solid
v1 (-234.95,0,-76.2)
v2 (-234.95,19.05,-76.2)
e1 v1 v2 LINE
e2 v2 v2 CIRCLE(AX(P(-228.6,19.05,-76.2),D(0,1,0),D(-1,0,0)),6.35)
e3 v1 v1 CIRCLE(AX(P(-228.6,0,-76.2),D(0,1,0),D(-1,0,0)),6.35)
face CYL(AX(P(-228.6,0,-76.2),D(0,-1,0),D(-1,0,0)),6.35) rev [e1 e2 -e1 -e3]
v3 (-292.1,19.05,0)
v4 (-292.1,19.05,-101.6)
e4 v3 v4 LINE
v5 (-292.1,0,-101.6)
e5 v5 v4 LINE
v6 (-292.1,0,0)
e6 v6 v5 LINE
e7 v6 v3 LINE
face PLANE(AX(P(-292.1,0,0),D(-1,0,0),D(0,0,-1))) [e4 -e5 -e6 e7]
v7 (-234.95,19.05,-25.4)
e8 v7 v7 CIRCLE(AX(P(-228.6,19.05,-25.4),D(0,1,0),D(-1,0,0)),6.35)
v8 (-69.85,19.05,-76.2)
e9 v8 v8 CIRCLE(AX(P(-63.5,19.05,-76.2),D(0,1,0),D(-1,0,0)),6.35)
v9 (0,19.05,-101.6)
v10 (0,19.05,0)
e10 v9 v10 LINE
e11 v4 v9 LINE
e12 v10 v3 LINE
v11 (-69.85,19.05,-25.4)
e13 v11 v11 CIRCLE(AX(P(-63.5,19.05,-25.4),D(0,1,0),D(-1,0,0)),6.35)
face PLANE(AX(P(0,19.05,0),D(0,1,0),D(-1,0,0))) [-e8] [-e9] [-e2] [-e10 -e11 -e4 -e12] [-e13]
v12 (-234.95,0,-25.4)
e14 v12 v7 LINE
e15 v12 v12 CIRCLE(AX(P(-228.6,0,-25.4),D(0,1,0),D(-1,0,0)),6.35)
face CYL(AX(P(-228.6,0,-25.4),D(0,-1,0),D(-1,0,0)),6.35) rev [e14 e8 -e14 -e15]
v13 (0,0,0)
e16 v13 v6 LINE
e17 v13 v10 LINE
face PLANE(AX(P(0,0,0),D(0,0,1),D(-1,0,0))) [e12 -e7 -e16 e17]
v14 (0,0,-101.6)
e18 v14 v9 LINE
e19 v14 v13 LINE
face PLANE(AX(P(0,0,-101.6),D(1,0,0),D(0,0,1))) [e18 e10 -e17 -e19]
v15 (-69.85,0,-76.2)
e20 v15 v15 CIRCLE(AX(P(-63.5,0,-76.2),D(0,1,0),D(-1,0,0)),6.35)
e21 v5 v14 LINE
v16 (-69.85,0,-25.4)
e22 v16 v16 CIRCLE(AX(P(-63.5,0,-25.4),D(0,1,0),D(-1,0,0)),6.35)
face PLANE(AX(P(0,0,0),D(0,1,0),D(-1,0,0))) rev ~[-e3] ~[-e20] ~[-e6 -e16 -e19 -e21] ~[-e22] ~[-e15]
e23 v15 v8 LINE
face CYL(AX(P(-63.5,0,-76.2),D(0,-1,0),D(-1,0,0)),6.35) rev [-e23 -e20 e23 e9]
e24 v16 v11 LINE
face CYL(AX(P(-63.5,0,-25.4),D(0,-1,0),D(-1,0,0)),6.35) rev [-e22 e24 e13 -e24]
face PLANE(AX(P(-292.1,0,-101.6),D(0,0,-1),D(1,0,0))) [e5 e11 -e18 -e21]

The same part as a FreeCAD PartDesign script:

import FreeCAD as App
import Part
import Sketcher
from FreeCAD import Vector
Q = App.Units.Quantity

doc = App.newDocument("Part")
body = doc.addObject("PartDesign::Body", "Body")

# Sketch on XZ plane
sketch1 = body.newObject("Sketcher::SketchObject", "Sketch")
sketch1.AttachmentSupport = (doc.getObject("XZ_Plane"), [""])
sketch1.MapMode = "FlatFace"
sketch1.addGeometry(Part.LineSegment(Vector(-292, 0, 0), Vector(0, 0, 0)), False)
sketch1.addGeometry(Part.LineSegment(Vector(0, 0, 0), Vector(0, -102, 0)), False)
sketch1.addGeometry(Part.LineSegment(Vector(0, -102, 0), Vector(-292, -102, 0)), False)
sketch1.addGeometry(Part.LineSegment(Vector(-292, -102, 0), Vector(-292, 0, 0)), False)
sketch1.addGeometry(Part.Circle(Vector(-64, -76, 0), Vector(0, 0, 1), 6), False)
sketch1.addGeometry(Part.Circle(Vector(-229, -76, 0), Vector(0, 0, 1), 6), False)
sketch1.addGeometry(Part.Circle(Vector(-64, -25, 0), Vector(0, 0, 1), 6), False)
sketch1.addGeometry(Part.Circle(Vector(-229, -25, 0), Vector(0, 0, 1), 6), False)
sketch1.addConstraint(Sketcher.Constraint("Coincident", 0, 2, 1, 1))
sketch1.addConstraint(Sketcher.Constraint("Coincident", 1, 2, 2, 1))
sketch1.addConstraint(Sketcher.Constraint("Coincident", 2, 2, 3, 1))
sketch1.addConstraint(Sketcher.Constraint("Coincident", 3, 2, 0, 1))
sketch1.addConstraint(Sketcher.Constraint("Horizontal", 0))
sketch1.addConstraint(Sketcher.Constraint("Vertical", 1))
sketch1.addConstraint(Sketcher.Constraint("Horizontal", 2))
sketch1.addConstraint(Sketcher.Constraint("Vertical", 3))
sketch1.addConstraint(Sketcher.Constraint("Coincident", 0, 2, -1, 1))
sketch1.addConstraint(Sketcher.Constraint("Equal", 4, 5))
sketch1.addConstraint(Sketcher.Constraint("Equal", 5, 6))
sketch1.addConstraint(Sketcher.Constraint("Equal", 6, 7))
sketch1.addConstraint(Sketcher.Constraint("Horizontal", 4, 3, 5, 3))
sketch1.addConstraint(Sketcher.Constraint("Horizontal", 6, 3, 7, 3))
sketch1.addConstraint(Sketcher.Constraint("Vertical", 4, 3, 6, 3))
sketch1.addConstraint(Sketcher.Constraint("Vertical", 5, 3, 7, 3))
sketch1.addConstraint(Sketcher.Constraint("Diameter", 4, Q("0.5 in")))
sketch1.addConstraint(Sketcher.Constraint("DistanceY", 1, 2, 1, 1, Q("4 in")))
sketch1.addConstraint(Sketcher.Constraint("DistanceX", 0, 1, 0, 2, Q("11.5 in")))
sketch1.addConstraint(Sketcher.Constraint("DistanceY", 6, 3, -1, 1, Q("1 in")))
sketch1.addConstraint(Sketcher.Constraint("DistanceY", 4, 3, 6, 3, Q("2 in")))
sketch1.addConstraint(Sketcher.Constraint("DistanceX", 4, 3, -1, 1, Q("2.5 in")))
sketch1.addConstraint(Sketcher.Constraint("DistanceX", 2, 2, 5, 3, Q("2.5 in")))
pad1 = body.newObject("PartDesign::Pad", "Pad")
pad1.Profile = sketch1
pad1.Length = Q("0.75 in")
pad1.Reversed = True

doc.recompute()
